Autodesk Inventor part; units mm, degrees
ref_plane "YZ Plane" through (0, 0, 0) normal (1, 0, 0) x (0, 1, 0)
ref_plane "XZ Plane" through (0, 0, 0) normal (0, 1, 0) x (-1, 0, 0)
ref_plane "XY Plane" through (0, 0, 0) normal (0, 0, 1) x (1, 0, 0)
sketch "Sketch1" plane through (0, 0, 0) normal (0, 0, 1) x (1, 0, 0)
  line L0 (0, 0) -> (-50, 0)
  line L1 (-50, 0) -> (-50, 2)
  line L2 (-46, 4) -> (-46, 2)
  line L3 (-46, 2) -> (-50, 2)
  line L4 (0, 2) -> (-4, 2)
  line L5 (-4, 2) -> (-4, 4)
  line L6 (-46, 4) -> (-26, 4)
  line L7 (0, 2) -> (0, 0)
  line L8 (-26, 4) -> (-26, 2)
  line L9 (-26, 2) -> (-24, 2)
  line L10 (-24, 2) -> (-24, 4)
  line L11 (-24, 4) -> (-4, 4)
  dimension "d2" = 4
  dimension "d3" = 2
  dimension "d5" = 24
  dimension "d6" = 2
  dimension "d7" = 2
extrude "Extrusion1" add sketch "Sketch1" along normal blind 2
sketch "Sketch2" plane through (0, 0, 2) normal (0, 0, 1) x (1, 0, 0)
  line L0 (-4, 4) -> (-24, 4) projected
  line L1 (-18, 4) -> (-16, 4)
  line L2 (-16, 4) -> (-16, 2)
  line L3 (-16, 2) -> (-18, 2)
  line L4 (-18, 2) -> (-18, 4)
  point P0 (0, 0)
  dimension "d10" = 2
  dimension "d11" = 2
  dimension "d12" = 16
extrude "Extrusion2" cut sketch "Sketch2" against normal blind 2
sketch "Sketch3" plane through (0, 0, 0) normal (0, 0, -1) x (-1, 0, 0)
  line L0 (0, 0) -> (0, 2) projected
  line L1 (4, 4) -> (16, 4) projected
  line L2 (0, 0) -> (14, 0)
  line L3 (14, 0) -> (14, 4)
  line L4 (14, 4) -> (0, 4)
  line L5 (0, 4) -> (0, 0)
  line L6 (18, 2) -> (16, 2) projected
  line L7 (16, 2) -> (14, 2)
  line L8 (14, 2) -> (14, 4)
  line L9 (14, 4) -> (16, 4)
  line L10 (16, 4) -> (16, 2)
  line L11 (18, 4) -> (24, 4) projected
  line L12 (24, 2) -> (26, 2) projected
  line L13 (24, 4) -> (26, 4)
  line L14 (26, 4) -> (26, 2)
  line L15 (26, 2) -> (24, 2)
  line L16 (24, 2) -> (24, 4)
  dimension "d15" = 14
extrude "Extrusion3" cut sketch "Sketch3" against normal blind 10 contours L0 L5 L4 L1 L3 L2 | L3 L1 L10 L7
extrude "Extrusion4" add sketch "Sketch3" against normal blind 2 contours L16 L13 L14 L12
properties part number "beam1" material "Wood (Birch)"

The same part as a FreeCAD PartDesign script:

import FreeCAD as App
import Part
import Sketcher
from FreeCAD import Vector

doc = App.newDocument("Part")
body = doc.addObject("PartDesign::Body", "Body")

# Sketch on XY plane
sketch1 = body.newObject("Sketcher::SketchObject", "Sketch")
sketch1.AttachmentSupport = (doc.getObject("XY_Plane"), [""])
sketch1.MapMode = "FlatFace"
sketch1.addGeometry([
    Part.LineSegment(Vector(-50, 0, 0), Vector(0, 0, 0)),  # 0
    Part.LineSegment(Vector(0, 0, 0), Vector(0, 2, 0)),  # 1
    Part.LineSegment(Vector(0, 2, 0), Vector(-4, 2, 0)),  # 2
    Part.LineSegment(Vector(-4, 2, 0), Vector(-4, 4, 0)),  # 3
    Part.LineSegment(Vector(-4, 4, 0), Vector(-24, 4, 0)),  # 4
    Part.LineSegment(Vector(-24, 4, 0), Vector(-24, 2, 0)),  # 5
    Part.LineSegment(Vector(-24, 2, 0), Vector(-26, 2, 0)),  # 6
    Part.LineSegment(Vector(-26, 2, 0), Vector(-26, 4, 0)),  # 7
    Part.LineSegment(Vector(-26, 4, 0), Vector(-46, 4, 0)),  # 8
    Part.LineSegment(Vector(-46, 4, 0), Vector(-46, 2, 0)),  # 9
    Part.LineSegment(Vector(-46, 2, 0), Vector(-50, 2, 0)),  # 10
    Part.LineSegment(Vector(-50, 2, 0), Vector(-50, 0, 0)),  # 11
], False)
sketch1.addConstraint([
    Sketcher.Constraint("Coincident", 0, 2, 1, 1),
    Sketcher.Constraint("Coincident", 1, 2, 2, 1),
    Sketcher.Constraint("Coincident", 2, 2, 3, 1),
    Sketcher.Constraint("Coincident", 3, 2, 4, 1),
    Sketcher.Constraint("Coincident", 4, 2, 5, 1),
    Sketcher.Constraint("Coincident", 5, 2, 6, 1),
    Sketcher.Constraint("Coincident", 6, 2, 7, 1),
    Sketcher.Constraint("Coincident", 7, 2, 8, 1),
    Sketcher.Constraint("Coincident", 8, 2, 9, 1),
    Sketcher.Constraint("Coincident", 9, 2, 10, 1),
    Sketcher.Constraint("Coincident", 10, 2, 11, 1),
    Sketcher.Constraint("Coincident", 11, 2, 0, 1),
    Sketcher.Constraint("Horizontal", 0),
    Sketcher.Constraint("Vertical", 1),
    Sketcher.Constraint("Horizontal", 2),
    Sketcher.Constraint("Vertical", 3),
    Sketcher.Constraint("Horizontal", 4),
    Sketcher.Constraint("Vertical", 5),
    Sketcher.Constraint("Horizontal", 6),
    Sketcher.Constraint("Vertical", 7),
    Sketcher.Constraint("Horizontal", 8),
    Sketcher.Constraint("Vertical", 9),
    Sketcher.Constraint("Horizontal", 10),
    Sketcher.Constraint("Vertical", 11),
    Sketcher.Constraint("Coincident", 0, 2, -1, 1),
    Sketcher.Constraint("Horizontal", 2, 2, 5, 2),
    Sketcher.Constraint("Horizontal", 4, 2, 7, 2),
    Sketcher.Constraint("Horizontal", 6, 2, 9, 2),
    Sketcher.Constraint("Equal", 4, 8),
    Sketcher.Constraint("Equal", 2, 10),
    Sketcher.Constraint("Equal", 6, 1),
    Sketcher.Constraint("Equal", 1, 3),
    Sketcher.Constraint("DistanceX", 2, 2, 2, 1, 4.0),
    Sketcher.Constraint("DistanceX", 6, 2, 6, 1, 2.0),
    Sketcher.Constraint("DistanceX", 4, 2, -1, 1, 24.0),
])
pad1 = body.newObject("PartDesign::Pad", "Pad")
pad1.Profile = sketch1
pad1.Length = 2

# Sketch on XY plane
sketch2 = body.newObject("Sketcher::SketchObject", "Sketch001")
sketch2.AttachmentSupport = (doc.getObject("XY_Plane"), [""])
sketch2.MapMode = "FlatFace"
sketch2.AttachmentOffset = App.Placement(Vector(0, 0, 2), App.Rotation())
sketch2.addGeometry([
    Part.LineSegment(Vector(-16, 2, 0), Vector(-16, 4, 0)),
    Part.LineSegment(Vector(-16, 4, 0), Vector(-18, 4, 0)),
    Part.LineSegment(Vector(-18, 4, 0), Vector(-18, 2, 0)),
    Part.LineSegment(Vector(-18, 2, 0), Vector(-16, 2, 0)),
], False)
sketch2.addConstraint([
    Sketcher.Constraint("Coincident", 0, 2, 1, 1),
    Sketcher.Constraint("Coincident", 1, 2, 2, 1),
    Sketcher.Constraint("Coincident", 2, 2, 3, 1),
    Sketcher.Constraint("Coincident", 3, 2, 0, 1),
    Sketcher.Constraint("Vertical", 0),
    Sketcher.Constraint("Horizontal", 1),
    Sketcher.Constraint("Vertical", 2),
    Sketcher.Constraint("Horizontal", 3),
    Sketcher.Constraint("Equal", 3, 0),
    Sketcher.Constraint("DistanceX", 1, 2, 1, 1, 2.0),
    Sketcher.Constraint("DistanceX", 0, 2, -1, 1, 16.0),
    Sketcher.Constraint("DistanceY", -1, 1, 2, 2, 2.0),
])
pocket1 = body.newObject("PartDesign::Pocket", "Pocket")
pocket1.Profile = sketch2
pocket1.Length = 2

# Sketch on XY plane
sketch3 = body.newObject("Sketcher::SketchObject", "Sketch002")
sketch3.AttachmentSupport = (doc.getObject("XY_Plane"), [""])
sketch3.MapMode = "FlatFace"
sketch3.addGeometry([
    Part.LineSegment(Vector(0, 0, 0), Vector(-14, 0, 0)),  # 0
    Part.LineSegment(Vector(-14, 0, 0), Vector(-14, 2, 0)),  # 1
    Part.LineSegment(Vector(-14, 2, 0), Vector(-16, 2, 0)),  # 2
    Part.LineSegment(Vector(-16, 2, 0), Vector(-16, 4, 0)),  # 3
    Part.LineSegment(Vector(-16, 4, 0), Vector(0, 4, 0)),  # 4
    Part.LineSegment(Vector(0, 4, 0), Vector(0, 0, 0)),  # 5
], False)
sketch3.addConstraint([
    Sketcher.Constraint("Coincident", 0, 2, 1, 1),
    Sketcher.Constraint("Coincident", 1, 2, 2, 1),
    Sketcher.Constraint("Coincident", 2, 2, 3, 1),
    Sketcher.Constraint("Coincident", 3, 2, 4, 1),
    Sketcher.Constraint("Coincident", 4, 2, 5, 1),
    Sketcher.Constraint("Coincident", 5, 2, 0, 1),
    Sketcher.Constraint("Horizontal", 0),
    Sketcher.Constraint("Vertical", 1),
    Sketcher.Constraint("Horizontal", 2),
    Sketcher.Constraint("Vertical", 3),
    Sketcher.Constraint("Horizontal", 4),
    Sketcher.Constraint("Vertical", 5),
    Sketcher.Constraint("Coincident", 5, 2, -1, 1),
    Sketcher.Constraint("Equal", 2, 1),
    Sketcher.Constraint("Equal", 1, 3),
    Sketcher.Constraint("DistanceX", 0, 2, 0, 1, 14.0),
    Sketcher.Constraint("DistanceX", 2, 2, 2, 1, 2.0),
])
pocket2 = body.newObject("PartDesign::Pocket", "Pocket001")
pocket2.Profile = sketch3
pocket2.Length = 10
pocket2.Reversed = True

# Sketch on XY plane
sketch4 = body.newObject("Sketcher::SketchObject", "Sketch003")
sketch4.AttachmentSupport = (doc.getObject("XY_Plane"), [""])
sketch4.MapMode = "FlatFace"
sketch4.addGeometry([
    Part.LineSegment(Vector(-24, 4, 0), Vector(-24, 2, 0)),
    Part.LineSegment(Vector(-24, 2, 0), Vector(-26, 2, 0)),
    Part.LineSegment(Vector(-26, 2, 0), Vector(-26, 4, 0)),
    Part.LineSegment(Vector(-26, 4, 0), Vector(-24, 4, 0)),
], False)
sketch4.addConstraint([
    Sketcher.Constraint("Coincident", 0, 2, 1, 1),
    Sketcher.Constraint("Coincident", 1, 2, 2, 1),
    Sketcher.Constraint("Coincident", 2, 2, 3, 1),
    Sketcher.Constraint("Coincident", 3, 2, 0, 1),
    Sketcher.Constraint("Vertical", 0),
    Sketcher.Constraint("Horizontal", 1),
    Sketcher.Constraint("Vertical", 2),
    Sketcher.Constraint("Horizontal", 3),
    Sketcher.Constraint("Equal", 3, 0),
    Sketcher.Constraint("DistanceX", 1, 2, 1, 1, 2.0),
    Sketcher.Constraint("DistanceX", 0, 2, -1, 1, 24.0),
    Sketcher.Constraint("DistanceY", -1, 1, 0, 2, 2.0),
])
pad2 = body.newObject("PartDesign::Pad", "Pad001")
pad2.Profile = sketch4
pad2.Length = 2

doc.recompute()
